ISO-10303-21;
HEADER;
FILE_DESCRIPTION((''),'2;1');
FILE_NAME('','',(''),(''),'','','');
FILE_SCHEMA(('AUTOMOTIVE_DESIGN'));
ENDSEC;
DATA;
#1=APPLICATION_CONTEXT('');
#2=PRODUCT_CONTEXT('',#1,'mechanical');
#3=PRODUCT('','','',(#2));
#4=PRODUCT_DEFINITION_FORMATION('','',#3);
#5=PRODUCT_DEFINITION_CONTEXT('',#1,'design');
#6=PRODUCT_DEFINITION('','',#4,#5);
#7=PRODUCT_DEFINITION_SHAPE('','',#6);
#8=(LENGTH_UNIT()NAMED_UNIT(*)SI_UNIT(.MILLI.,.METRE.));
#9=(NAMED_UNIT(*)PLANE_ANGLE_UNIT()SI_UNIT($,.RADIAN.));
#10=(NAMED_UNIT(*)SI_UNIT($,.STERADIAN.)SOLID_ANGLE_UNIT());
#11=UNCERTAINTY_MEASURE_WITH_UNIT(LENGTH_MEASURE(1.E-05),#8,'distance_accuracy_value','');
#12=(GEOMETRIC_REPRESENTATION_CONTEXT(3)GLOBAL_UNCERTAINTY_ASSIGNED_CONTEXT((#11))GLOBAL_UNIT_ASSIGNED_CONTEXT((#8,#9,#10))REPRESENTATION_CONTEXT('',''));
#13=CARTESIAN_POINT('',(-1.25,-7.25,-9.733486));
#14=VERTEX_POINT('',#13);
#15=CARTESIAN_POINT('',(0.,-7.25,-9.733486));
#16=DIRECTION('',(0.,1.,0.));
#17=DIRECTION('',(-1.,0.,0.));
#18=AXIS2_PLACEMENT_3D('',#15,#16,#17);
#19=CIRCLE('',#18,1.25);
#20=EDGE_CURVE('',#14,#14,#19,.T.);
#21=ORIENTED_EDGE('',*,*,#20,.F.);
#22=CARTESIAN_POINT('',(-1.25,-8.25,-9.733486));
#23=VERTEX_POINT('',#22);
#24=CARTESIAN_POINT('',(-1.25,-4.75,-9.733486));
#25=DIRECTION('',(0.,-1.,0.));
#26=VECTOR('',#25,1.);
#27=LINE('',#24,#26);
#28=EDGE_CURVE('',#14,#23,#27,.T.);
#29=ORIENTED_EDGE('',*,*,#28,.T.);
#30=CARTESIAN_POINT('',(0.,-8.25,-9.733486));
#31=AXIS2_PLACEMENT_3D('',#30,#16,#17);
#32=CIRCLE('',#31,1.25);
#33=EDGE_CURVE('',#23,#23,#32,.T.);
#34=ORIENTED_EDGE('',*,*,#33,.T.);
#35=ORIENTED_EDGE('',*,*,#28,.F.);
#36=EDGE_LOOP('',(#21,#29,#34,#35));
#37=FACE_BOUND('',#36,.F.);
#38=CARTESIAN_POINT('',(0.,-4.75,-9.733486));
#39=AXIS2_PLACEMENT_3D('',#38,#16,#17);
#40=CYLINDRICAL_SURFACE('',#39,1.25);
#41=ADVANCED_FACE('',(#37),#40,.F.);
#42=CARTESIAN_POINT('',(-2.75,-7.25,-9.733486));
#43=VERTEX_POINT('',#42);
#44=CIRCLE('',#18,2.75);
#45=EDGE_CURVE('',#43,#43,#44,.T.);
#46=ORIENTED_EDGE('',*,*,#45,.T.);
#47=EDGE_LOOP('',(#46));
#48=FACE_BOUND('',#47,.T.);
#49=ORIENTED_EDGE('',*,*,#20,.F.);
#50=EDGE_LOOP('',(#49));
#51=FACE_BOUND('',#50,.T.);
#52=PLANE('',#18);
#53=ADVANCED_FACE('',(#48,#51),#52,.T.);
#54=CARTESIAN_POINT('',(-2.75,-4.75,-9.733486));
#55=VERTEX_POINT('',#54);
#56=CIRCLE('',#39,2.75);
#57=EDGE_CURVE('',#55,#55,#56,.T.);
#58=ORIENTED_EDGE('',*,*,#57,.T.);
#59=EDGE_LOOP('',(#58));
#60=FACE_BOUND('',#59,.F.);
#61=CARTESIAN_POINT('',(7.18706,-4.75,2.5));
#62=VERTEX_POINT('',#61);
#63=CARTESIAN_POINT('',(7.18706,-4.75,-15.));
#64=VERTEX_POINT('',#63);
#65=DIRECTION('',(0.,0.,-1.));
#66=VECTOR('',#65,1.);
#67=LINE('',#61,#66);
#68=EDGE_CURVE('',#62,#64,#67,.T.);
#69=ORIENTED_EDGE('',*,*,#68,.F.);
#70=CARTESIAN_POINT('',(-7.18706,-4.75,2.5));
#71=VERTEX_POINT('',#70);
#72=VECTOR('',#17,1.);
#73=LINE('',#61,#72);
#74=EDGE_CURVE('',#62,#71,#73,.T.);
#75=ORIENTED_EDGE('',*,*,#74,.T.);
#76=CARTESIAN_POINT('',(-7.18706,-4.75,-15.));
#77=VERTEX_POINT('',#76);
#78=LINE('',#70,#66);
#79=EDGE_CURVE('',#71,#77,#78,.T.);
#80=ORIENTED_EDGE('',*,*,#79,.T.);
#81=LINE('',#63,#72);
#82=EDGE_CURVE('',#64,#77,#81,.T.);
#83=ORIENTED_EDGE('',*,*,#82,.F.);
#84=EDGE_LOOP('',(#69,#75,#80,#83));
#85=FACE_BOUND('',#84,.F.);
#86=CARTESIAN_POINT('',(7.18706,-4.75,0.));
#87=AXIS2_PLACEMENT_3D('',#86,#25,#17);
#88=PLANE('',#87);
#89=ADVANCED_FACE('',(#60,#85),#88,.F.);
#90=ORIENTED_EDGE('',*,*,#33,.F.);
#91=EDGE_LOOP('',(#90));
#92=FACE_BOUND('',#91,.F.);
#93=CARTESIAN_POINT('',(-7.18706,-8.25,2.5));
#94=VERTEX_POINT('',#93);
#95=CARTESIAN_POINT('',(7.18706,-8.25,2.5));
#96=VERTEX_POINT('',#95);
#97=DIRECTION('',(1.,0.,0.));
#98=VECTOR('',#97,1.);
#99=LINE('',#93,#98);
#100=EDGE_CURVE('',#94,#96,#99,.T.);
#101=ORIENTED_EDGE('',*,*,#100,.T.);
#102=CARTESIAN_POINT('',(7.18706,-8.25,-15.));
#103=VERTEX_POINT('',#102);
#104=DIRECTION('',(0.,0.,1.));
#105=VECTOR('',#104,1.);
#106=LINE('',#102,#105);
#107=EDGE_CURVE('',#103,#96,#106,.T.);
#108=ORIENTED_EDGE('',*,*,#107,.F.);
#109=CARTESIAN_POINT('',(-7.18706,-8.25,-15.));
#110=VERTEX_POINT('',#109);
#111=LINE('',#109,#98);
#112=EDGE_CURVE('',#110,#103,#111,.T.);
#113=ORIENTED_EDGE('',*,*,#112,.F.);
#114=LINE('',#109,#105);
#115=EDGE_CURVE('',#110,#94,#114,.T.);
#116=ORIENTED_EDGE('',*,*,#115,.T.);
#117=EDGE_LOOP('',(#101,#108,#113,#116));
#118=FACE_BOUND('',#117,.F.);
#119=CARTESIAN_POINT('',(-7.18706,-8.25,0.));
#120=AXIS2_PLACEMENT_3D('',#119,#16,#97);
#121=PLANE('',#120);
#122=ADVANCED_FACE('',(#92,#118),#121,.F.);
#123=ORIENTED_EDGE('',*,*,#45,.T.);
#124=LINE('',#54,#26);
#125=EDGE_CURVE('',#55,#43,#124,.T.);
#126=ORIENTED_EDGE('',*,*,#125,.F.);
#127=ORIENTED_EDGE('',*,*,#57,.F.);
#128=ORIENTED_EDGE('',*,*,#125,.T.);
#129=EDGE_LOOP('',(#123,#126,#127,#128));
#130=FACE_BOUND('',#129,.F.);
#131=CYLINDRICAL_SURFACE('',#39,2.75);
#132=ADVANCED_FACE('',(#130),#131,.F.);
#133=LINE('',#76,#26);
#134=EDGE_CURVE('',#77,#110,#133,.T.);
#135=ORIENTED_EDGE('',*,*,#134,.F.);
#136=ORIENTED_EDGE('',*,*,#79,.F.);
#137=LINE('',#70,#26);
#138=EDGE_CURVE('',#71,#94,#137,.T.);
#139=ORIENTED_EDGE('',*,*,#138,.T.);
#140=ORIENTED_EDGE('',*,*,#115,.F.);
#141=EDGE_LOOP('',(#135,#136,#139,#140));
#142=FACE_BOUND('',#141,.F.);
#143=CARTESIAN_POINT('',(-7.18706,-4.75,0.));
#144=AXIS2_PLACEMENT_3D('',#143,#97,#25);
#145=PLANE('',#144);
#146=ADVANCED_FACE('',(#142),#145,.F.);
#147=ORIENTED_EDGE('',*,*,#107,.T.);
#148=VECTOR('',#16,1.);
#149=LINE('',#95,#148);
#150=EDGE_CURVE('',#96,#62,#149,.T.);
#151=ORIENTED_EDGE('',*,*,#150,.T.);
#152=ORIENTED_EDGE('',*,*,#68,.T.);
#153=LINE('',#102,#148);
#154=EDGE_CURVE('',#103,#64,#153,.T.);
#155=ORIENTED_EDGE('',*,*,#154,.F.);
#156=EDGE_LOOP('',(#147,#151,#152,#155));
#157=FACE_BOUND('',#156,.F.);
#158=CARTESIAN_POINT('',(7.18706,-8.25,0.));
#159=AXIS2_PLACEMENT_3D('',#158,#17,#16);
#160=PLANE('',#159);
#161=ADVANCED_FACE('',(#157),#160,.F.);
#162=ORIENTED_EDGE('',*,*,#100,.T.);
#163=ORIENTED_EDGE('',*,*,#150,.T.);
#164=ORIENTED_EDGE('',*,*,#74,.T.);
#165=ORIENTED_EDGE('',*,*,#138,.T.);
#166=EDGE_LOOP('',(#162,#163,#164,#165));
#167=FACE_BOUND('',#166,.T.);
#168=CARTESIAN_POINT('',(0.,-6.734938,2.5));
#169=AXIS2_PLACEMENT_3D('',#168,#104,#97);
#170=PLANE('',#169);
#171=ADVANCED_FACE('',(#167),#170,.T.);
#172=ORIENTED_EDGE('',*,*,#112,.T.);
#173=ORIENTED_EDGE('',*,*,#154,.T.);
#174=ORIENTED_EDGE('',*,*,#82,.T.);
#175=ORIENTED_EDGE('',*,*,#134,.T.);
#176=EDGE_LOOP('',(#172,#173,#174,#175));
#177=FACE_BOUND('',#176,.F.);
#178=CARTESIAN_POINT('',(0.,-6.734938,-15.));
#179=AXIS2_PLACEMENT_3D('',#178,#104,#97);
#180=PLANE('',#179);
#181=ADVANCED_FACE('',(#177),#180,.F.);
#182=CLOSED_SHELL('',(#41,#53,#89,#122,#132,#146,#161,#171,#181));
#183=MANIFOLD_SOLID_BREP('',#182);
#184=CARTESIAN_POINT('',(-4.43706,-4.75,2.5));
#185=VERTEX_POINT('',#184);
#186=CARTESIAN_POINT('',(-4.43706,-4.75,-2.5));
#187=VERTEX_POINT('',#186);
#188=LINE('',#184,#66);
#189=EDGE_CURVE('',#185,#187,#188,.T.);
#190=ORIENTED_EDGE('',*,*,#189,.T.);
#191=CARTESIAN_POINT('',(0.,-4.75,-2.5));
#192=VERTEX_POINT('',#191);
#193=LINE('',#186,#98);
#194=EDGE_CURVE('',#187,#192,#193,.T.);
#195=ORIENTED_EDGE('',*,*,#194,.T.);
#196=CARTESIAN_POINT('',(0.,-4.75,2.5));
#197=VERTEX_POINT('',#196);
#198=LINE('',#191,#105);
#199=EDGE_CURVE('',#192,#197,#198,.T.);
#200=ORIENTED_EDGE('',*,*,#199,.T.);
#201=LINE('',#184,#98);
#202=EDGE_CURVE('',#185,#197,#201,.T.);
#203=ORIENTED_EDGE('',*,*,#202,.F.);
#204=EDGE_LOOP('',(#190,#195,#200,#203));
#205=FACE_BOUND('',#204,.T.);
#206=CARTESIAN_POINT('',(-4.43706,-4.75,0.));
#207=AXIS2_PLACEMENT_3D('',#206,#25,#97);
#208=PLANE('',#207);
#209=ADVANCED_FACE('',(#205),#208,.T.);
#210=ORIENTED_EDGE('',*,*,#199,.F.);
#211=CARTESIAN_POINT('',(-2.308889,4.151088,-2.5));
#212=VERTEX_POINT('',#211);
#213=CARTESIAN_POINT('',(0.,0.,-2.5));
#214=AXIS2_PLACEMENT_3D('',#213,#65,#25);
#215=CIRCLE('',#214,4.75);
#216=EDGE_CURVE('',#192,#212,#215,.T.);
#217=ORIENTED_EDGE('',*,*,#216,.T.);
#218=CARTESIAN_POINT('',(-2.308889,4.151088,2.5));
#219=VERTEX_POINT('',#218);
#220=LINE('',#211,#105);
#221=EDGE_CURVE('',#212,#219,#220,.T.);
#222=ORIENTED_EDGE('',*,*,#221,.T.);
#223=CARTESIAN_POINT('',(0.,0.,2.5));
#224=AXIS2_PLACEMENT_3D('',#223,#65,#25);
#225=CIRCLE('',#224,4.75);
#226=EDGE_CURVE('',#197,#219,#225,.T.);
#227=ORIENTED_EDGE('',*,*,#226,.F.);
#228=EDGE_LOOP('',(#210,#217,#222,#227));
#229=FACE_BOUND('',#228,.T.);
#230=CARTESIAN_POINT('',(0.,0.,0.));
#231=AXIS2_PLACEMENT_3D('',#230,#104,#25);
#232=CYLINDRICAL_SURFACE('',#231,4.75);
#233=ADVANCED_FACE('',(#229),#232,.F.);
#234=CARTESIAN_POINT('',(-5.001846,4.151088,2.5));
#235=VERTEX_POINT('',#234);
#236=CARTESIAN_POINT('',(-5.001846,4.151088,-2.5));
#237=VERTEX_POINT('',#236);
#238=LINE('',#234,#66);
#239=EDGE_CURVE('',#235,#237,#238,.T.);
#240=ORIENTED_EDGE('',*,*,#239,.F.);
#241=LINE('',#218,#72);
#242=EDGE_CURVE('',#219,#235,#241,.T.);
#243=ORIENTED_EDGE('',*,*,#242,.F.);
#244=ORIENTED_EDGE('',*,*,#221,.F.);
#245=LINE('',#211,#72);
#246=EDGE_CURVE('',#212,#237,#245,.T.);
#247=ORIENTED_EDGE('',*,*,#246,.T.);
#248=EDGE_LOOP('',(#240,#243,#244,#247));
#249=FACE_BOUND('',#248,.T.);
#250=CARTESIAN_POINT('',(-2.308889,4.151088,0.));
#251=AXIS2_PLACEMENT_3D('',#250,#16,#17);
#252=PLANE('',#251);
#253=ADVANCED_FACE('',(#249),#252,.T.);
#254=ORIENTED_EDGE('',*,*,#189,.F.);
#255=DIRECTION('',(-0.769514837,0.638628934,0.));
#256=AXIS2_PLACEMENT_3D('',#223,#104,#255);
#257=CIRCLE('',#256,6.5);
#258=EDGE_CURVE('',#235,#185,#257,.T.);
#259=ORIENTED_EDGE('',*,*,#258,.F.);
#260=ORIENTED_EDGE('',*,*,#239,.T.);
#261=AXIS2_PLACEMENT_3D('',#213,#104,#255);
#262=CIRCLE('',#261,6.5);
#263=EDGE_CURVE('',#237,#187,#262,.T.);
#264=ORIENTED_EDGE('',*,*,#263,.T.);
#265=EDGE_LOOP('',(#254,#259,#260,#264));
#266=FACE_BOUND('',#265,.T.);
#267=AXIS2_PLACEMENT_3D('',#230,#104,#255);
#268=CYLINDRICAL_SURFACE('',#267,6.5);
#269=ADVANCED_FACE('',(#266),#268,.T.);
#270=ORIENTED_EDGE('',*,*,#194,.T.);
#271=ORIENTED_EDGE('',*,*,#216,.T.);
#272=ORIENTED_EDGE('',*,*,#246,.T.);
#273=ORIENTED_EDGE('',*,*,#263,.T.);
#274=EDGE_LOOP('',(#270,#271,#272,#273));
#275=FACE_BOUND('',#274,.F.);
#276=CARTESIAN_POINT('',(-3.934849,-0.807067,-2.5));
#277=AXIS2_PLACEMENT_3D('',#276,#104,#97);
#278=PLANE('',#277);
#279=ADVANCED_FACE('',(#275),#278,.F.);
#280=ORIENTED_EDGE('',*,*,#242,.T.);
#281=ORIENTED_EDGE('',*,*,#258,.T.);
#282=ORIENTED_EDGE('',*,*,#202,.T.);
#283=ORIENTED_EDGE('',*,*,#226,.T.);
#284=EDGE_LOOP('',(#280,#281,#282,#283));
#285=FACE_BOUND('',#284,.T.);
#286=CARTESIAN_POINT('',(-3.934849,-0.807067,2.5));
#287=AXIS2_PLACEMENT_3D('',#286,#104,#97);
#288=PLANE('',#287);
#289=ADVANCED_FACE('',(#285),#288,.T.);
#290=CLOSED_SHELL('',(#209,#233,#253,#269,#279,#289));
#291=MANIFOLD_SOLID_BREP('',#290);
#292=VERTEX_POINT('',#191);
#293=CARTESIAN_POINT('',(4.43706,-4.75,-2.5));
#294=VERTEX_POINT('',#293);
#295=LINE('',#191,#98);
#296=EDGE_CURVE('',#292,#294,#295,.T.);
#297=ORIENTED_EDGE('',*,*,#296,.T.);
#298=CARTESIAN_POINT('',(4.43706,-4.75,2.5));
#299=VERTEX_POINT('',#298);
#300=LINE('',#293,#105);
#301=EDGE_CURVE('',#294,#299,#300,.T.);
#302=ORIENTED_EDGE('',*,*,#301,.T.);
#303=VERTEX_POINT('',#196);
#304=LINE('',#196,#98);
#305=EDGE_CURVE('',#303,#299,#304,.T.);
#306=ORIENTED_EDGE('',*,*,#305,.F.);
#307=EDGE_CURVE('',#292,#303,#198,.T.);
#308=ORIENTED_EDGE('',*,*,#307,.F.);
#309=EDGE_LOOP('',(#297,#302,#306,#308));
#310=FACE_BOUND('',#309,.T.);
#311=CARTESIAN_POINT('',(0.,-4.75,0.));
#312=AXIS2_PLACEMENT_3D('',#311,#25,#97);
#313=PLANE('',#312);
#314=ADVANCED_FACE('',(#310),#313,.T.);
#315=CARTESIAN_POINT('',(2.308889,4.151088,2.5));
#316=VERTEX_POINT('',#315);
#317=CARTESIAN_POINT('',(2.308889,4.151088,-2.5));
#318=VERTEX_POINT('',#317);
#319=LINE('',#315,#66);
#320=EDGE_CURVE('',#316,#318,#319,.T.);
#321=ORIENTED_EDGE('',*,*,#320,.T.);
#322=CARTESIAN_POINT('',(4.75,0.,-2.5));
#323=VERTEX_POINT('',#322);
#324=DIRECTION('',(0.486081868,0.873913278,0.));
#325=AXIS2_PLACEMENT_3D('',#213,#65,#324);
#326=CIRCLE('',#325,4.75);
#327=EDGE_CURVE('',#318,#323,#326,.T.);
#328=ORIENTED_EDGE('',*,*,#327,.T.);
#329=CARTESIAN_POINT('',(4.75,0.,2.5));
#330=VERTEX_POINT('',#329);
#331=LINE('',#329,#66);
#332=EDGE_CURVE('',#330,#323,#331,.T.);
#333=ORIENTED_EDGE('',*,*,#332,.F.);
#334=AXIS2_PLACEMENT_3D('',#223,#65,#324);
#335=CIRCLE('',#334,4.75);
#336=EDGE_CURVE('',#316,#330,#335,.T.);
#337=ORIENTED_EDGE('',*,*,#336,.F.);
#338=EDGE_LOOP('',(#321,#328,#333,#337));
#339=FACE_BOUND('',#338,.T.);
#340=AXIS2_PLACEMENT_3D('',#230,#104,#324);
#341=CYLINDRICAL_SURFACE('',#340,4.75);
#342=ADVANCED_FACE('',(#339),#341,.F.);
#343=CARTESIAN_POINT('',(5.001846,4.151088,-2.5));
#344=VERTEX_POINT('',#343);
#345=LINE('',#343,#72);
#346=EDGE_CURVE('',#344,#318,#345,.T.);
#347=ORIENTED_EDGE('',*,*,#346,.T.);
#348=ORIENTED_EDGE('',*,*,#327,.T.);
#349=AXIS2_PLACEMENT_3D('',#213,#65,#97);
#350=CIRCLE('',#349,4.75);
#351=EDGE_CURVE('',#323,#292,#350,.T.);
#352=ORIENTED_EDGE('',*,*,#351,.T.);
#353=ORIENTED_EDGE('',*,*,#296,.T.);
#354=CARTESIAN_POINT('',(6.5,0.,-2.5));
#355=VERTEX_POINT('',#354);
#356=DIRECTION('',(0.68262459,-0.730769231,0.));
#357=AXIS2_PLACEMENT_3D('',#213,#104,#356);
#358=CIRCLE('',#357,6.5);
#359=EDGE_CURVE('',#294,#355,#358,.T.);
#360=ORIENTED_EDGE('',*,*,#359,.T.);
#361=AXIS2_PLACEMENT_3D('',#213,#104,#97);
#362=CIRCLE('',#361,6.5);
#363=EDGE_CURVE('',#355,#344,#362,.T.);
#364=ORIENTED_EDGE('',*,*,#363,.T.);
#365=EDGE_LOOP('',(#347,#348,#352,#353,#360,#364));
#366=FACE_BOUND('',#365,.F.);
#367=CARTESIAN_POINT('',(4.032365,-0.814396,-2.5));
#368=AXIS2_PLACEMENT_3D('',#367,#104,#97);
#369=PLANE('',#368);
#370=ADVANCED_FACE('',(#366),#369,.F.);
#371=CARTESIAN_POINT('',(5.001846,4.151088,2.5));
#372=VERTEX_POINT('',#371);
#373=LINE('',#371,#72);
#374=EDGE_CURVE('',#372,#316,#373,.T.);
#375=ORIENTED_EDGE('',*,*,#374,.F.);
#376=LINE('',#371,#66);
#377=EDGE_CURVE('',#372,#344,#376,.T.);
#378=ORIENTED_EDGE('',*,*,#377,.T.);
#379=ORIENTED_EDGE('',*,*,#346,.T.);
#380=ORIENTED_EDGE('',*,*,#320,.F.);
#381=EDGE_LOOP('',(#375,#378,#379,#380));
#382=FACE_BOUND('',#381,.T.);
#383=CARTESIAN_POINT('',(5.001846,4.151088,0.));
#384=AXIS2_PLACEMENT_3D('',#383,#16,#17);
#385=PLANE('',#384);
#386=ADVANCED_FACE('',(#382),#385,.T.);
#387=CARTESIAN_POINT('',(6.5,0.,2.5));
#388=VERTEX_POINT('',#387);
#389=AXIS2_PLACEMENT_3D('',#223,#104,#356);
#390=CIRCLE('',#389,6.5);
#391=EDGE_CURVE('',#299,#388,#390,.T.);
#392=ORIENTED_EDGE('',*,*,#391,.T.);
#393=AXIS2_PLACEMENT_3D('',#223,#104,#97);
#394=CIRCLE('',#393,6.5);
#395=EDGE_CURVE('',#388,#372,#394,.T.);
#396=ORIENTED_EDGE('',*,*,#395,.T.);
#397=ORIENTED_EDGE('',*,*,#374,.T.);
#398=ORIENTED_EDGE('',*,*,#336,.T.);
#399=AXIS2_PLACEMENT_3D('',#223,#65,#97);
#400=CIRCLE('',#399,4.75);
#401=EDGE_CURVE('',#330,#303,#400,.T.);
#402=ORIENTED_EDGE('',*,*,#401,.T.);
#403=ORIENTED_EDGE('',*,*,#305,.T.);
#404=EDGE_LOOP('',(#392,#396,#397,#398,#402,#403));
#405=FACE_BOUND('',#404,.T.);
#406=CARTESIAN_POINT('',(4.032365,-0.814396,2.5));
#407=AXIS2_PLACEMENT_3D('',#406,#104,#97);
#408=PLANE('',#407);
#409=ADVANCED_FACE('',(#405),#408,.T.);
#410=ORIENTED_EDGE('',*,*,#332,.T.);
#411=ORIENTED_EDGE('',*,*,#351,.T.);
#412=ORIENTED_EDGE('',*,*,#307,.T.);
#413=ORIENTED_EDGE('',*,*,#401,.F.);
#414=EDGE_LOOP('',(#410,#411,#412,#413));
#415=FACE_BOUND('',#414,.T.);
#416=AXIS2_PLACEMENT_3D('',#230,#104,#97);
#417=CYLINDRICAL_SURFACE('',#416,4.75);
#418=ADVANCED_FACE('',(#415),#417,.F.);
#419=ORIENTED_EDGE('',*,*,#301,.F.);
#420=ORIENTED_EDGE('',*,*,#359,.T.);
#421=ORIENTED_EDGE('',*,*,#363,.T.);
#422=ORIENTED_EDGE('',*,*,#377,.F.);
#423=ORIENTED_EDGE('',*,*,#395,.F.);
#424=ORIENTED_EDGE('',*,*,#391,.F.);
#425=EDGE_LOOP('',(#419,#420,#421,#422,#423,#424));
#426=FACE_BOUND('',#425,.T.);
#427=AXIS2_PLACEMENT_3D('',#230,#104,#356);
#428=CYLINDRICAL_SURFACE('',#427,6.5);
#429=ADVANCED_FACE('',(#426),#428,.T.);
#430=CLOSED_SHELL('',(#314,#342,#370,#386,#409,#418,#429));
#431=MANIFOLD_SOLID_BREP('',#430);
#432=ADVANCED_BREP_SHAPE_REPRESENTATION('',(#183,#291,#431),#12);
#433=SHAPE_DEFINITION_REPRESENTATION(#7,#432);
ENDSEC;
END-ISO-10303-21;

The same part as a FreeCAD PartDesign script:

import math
import FreeCAD as App
import Part
import Sketcher
Q = App.Units.Quantity


def add_polygon(sketch, points):
    """Adds a closed chain of lines whose ends are joined by coincident constraints."""
    first, n = sketch.GeometryCount, len(points)
    for a, b in zip(points, points[1:] + points[:1]):
        sketch.addGeometry(Part.LineSegment(App.Vector(*a, 0), App.Vector(*b, 0)), False)
    for i in range(n):
        sketch.addConstraint(Sketcher.Constraint("Coincident", first + i, 2, first + (i + 1) % n, 1))

doc = App.newDocument("Part")
body = doc.addObject("PartDesign::Body", "Body")

# Sketch on XY plane
sketch1 = body.newObject("Sketcher::SketchObject", "Sketch")
sketch1.AttachmentSupport = (doc.getObject("XY_Plane"), [""])
sketch1.MapMode = "FlatFace"
sketch1.addGeometry([
    Part.LineSegment(App.Vector(-4.4, -4.8, 0), App.Vector(0, -4.8, 0)),
    Part.ArcOfCircle(Part.Circle(App.Vector(0, 0, 0), App.Vector(0, 0, 1), 4.8), math.radians(119), math.radians(270)),
    Part.LineSegment(App.Vector(-2.3, 4.2, 0), App.Vector(-5, 4.2, 0)),
    Part.ArcOfCircle(Part.Circle(App.Vector(0, 0, 0), App.Vector(0, 0, 1), 6.5), math.radians(140), math.radians(227)),
], False)
sketch1.addConstraint([
    Sketcher.Constraint("Tangent", 0, 2, 1, 2),
    Sketcher.Constraint("Coincident", 1, 1, 2, 1),
    Sketcher.Constraint("Coincident", 2, 2, 3, 1),
    Sketcher.Constraint("Coincident", 3, 2, 0, 1),
    Sketcher.Constraint("Horizontal", 0),
    Sketcher.Constraint("Horizontal", 2),
    Sketcher.Constraint("Coincident", 1, 3, -1, 1),
    Sketcher.Constraint("Coincident", 3, 3, -1, 1),
    Sketcher.Constraint("Radius", 3, Q("6.5 mm")),
    Sketcher.Constraint("Radius", 1, Q("4.75 mm")),
    Sketcher.Constraint("DistanceX", 2, 2, 2, 1, Q("2.692958 mm")),
])
pad1 = body.newObject("PartDesign::Pad", "Pad")
pad1.Profile = sketch1
pad1.Length = 5
pad1.Midplane = True
body2 = doc.addObject("PartDesign::Body", "Body001")

# Sketch on XY plane
sketch2 = body2.newObject("Sketcher::SketchObject", "Sketch001")
sketch2.AttachmentSupport = (doc.getObject("XY_Plane001"), [""])
sketch2.MapMode = "FlatFace"
sketch2.addGeometry([
    Part.ArcOfCircle(Part.Circle(App.Vector(0, 0, 0), App.Vector(0, 0, 1), 4.8), math.radians(-90), math.radians(0)),  # 0
    Part.LineSegment(App.Vector(0, -4.8, 0), App.Vector(4.4, -4.8, 0)),  # 1
    Part.ArcOfCircle(Part.Circle(App.Vector(0, 0, 0), App.Vector(0, 0, 1), 6.5), math.radians(-47), math.radians(0)),  # 2
    Part.ArcOfCircle(Part.Circle(App.Vector(0, 0, 0), App.Vector(0, 0, 1), 6.5), math.radians(0), math.radians(40)),  # 3
    Part.LineSegment(App.Vector(5, 4.2, 0), App.Vector(2.3, 4.2, 0)),  # 4
    Part.ArcOfCircle(Part.Circle(App.Vector(0, 0, 0), App.Vector(0, 0, 1), 4.8), math.radians(0), math.radians(61)),  # 5
], False)
sketch2.addConstraint([
    Sketcher.Constraint("Tangent", 0, 1, 1, 1),
    Sketcher.Constraint("Coincident", 1, 2, 2, 1),
    Sketcher.Constraint("Tangent", 2, 2, 3, 1),
    Sketcher.Constraint("Coincident", 3, 2, 4, 1),
    Sketcher.Constraint("Coincident", 4, 2, 5, 2),
    Sketcher.Constraint("Tangent", 5, 1, 0, 2),
    Sketcher.Constraint("Horizontal", 1),
    Sketcher.Constraint("Horizontal", 4),
    Sketcher.Constraint("Coincident", 0, 3, -1, 1),
    Sketcher.Constraint("Coincident", 2, 3, -1, 1),
    Sketcher.Constraint("Equal", 2, 3),
    Sketcher.Constraint("Equal", 0, 5),
    Sketcher.Constraint("PointOnObject", 2, 2, -1),
    Sketcher.Constraint("PointOnObject", 5, 1, -1),
    Sketcher.Constraint("Radius", 2, Q("6.5 mm")),
    Sketcher.Constraint("Radius", 0, Q("4.75 mm")),
    Sketcher.Constraint("DistanceX", 4, 2, 4, 1, Q("2.692958 mm")),
])
pad2 = body2.newObject("PartDesign::Pad", "Pad001")
pad2.Profile = sketch2
pad2.Length = 5
pad2.Midplane = True
body3 = doc.addObject("PartDesign::Body", "Body002")

# Sketch on XY plane
sketch3 = body3.newObject("Sketcher::SketchObject", "Sketch002")
sketch3.AttachmentSupport = (doc.getObject("XY_Plane002"), [""])
sketch3.MapMode = "FlatFace"
add_polygon(sketch3, [(-7.2, -4.8), (-7.2, -8.2), (7.2, -8.2), (7.2, -4.8)])  # lines 0-3
sketch3.addConstraint([
    Sketcher.Constraint("Vertical", 0),
    Sketcher.Constraint("Horizontal", 1),
    Sketcher.Constraint("Vertical", 2),
    Sketcher.Constraint("Horizontal", 3),
    Sketcher.Constraint("DistanceY", 0, 2, 0, 1, Q("3.5 mm")),
    Sketcher.Constraint("DistanceY", 0, 2, -1, 1, Q("8.25 mm")),
    Sketcher.Constraint("DistanceX", 1, 1, 1, 2, Q("14.37412 mm")),
    Sketcher.Constraint("DistanceX", 0, 2, -1, 1, Q("7.18706 mm")),
])
pad3 = body3.newObject("PartDesign::Pad", "Pad002")
pad3.Profile = sketch3
pad3.Type = "TwoLengths"
pad3.Length = 15
pad3.Length2 = 2.5
pad3.Reversed = True

# Sketch on XZ plane
sketch4 = body3.newObject("Sketcher::SketchObject", "Sketch003")
sketch4.AttachmentSupport = (doc.getObject("XZ_Plane002"), [""])
sketch4.MapMode = "FlatFace"
sketch4.AttachmentOffset = App.Placement(App.Vector(0, 0, 4.75), App.Rotation())
sketch4.addGeometry(Part.Circle(App.Vector(0, -9.7, 0), App.Vector(0, 0, 1), 1.2), False)
sketch4.addConstraint([
    Sketcher.Constraint("PointOnObject", 0, 3, -2),
    Sketcher.Constraint("Diameter", 0, Q("2.5 mm")),
    Sketcher.Constraint("DistanceY", 0, 3, -1, 1, Q("9.733486 mm")),
])
pocket1 = body3.newObject("PartDesign::Pocket", "Pocket")
pocket1.Profile = sketch4
pocket1.Length = 25
pocket1.Reversed = True

# Sketch on XZ plane
sketch5 = body3.newObject("Sketcher::SketchObject", "Sketch004")
sketch5.AttachmentSupport = (doc.getObject("XZ_Plane002"), [""])
sketch5.MapMode = "FlatFace"
sketch5.AttachmentOffset = App.Placement(App.Vector(0, 0, 4.75), App.Rotation())
sketch5.addGeometry([
    Part.Circle(App.Vector(0, -9.7, 0), App.Vector(0, 0, 1), 2.8),
    Part.Circle(App.Vector(0, -9.7, 0), App.Vector(0, 0, 1), 1.2),
], False)
sketch5.addConstraint([
    Sketcher.Constraint("Coincident", 1, 3, 0, 3),
    Sketcher.Constraint("PointOnObject", 0, 3, -2),
    Sketcher.Constraint("Diameter", 0, Q("5.5 mm")),
    Sketcher.Constraint("Diameter", 1, Q("2.5 mm")),
    Sketcher.Constraint("DistanceY", 0, 3, -1, 1, Q("9.733486 mm")),
])
pocket2 = body3.newObject("PartDesign::Pocket", "Pocket001")
pocket2.Profile = sketch5
pocket2.Length = 2.5
pocket2.Reversed = True

doc.recompute()
